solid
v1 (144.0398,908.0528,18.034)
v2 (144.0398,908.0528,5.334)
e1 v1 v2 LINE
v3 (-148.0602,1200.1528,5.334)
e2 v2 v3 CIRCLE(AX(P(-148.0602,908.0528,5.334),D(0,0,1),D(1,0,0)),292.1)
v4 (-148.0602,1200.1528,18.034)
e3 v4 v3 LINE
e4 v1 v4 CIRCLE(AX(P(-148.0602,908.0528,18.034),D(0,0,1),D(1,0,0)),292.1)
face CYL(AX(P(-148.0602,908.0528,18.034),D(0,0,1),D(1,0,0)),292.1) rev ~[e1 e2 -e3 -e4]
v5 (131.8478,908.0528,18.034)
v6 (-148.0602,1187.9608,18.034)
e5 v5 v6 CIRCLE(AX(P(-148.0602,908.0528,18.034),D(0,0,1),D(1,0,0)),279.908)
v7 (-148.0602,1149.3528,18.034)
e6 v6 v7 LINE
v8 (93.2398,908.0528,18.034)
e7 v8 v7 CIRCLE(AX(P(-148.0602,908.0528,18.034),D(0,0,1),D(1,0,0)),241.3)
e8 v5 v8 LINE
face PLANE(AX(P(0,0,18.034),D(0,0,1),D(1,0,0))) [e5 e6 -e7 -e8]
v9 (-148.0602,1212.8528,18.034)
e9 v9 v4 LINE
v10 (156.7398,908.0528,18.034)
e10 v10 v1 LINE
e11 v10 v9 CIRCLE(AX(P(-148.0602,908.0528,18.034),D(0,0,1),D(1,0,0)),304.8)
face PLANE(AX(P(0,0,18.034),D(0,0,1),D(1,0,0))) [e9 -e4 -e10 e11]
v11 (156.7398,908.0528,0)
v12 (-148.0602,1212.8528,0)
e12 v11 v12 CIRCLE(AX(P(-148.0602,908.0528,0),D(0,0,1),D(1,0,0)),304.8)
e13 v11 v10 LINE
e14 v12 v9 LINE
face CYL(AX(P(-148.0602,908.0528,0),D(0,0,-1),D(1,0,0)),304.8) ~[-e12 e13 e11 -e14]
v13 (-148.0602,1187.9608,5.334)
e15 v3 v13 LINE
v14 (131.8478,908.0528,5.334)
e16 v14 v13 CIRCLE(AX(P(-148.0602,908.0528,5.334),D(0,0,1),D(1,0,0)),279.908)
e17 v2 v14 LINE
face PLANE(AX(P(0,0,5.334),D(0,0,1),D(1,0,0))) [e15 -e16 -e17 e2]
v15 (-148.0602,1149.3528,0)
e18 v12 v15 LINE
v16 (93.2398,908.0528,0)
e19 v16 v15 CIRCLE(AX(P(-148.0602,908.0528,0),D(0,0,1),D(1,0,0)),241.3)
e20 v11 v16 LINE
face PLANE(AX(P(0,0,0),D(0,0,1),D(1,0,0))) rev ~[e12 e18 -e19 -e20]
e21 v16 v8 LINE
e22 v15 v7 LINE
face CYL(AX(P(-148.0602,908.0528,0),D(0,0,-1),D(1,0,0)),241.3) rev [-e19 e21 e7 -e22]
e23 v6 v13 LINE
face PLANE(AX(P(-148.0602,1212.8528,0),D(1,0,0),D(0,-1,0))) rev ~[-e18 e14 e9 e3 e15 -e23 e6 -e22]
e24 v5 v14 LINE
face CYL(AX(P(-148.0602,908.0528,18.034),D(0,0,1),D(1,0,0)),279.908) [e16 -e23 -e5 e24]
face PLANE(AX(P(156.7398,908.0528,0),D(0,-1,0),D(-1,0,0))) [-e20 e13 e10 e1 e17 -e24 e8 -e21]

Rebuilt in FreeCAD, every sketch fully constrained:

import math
import FreeCAD as App
import Part
import Sketcher
from FreeCAD import Vector
Q = App.Units.Quantity

doc = App.newDocument("Part")
params = doc.addObject("Spreadsheet::Sheet", "Params")
for row, (alias, value) in enumerate([
    ("sketch1_radius", "12 in"),
    ("sketch1_radius2", "9.5 in"),
    ("pad1_length", "0.71 in"),
    ("sketch2_width", "0.48 in"),
    ("sketch2_radius", "11.5 in"),
    ("pocket1_length", "0.5 in"),
], start=1):
    params.set(f"A{row}", alias)
    params.set(f"B{row}", "=" + value)
    params.setAlias(f"B{row}", alias)

body = doc.addObject("PartDesign::Body", "Body")

# Sketch on XY plane
sketch1 = doc.addObject("Sketcher::SketchObject", "Sketch")
body.addObject(sketch1)
sketch1.AttachmentSupport = (doc.XY_Plane, [""])
sketch1.MapMode = "FlatFace"
sketch1.addGeometry([
    Part.LineSegment(Vector(93, 908, 0), Vector(157, 908, 0)),
    Part.ArcOfCircle(Part.Circle(Vector(-148, 908, 0), Vector(0, 0, 1), 305), math.radians(0), math.radians(90)),
    Part.LineSegment(Vector(-148, 1213, 0), Vector(-148, 1149, 0)),
    Part.ArcOfCircle(Part.Circle(Vector(-148, 908, 0), Vector(0, 0, 1), 241), math.radians(0), math.radians(90)),
], False)
sketch1.addConstraint([
    Sketcher.Constraint("Coincident", 0, 2, 1, 1),
    Sketcher.Constraint("Coincident", 1, 2, 2, 1),
    Sketcher.Constraint("Coincident", 2, 2, 3, 2),
    Sketcher.Constraint("Coincident", 3, 1, 0, 1),
    Sketcher.Constraint("Horizontal", 0),
    Sketcher.Constraint("Vertical", 2),
    Sketcher.Constraint("Coincident", 3, 3, 1, 3),
    Sketcher.Constraint("Horizontal", 3, 3, 0, 2),
    Sketcher.Constraint("Vertical", 3, 3, 1, 2),
    Sketcher.Constraint("Radius", 1, Q("12 in")),
    Sketcher.Constraint("Radius", 3, Q("9.5 in")),
    Sketcher.Constraint("DistanceY", -1, 1, 1, 3, Q("35.7501 in")),
    Sketcher.Constraint("DistanceX", 1, 3, -1, 1, Q("148.0602 mm")),
])
sketch1.setExpression("Constraints[9]", "Params.sketch1_radius")
sketch1.setExpression("Constraints[10]", "Params.sketch1_radius2")
pad1 = doc.addObject("PartDesign::Pad", "Pad")
body.addObject(pad1)
pad1.Profile = sketch1
pad1.setExpression("Length", "Params.pad1_length")

# Sketch on XY plane
sketch2 = doc.addObject("Sketcher::SketchObject", "Sketch001")
body.addObject(sketch2)
sketch2.AttachmentSupport = (doc.XY_Plane, [""])
sketch2.MapMode = "FlatFace"
sketch2.AttachmentOffset = App.Placement(Vector(0, 0, 0.71 * 25.4), App.Rotation())
sketch2.addGeometry([
    Part.LineSegment(Vector(132, 908, 0), Vector(144, 908, 0)),
    Part.ArcOfCircle(Part.Circle(Vector(-148, 908, 0), Vector(0, 0, 1), 292), math.radians(0), math.radians(90)),
    Part.LineSegment(Vector(-148, 1200, 0), Vector(-148, 1188, 0)),
    Part.ArcOfCircle(Part.Circle(Vector(-148, 908, 0), Vector(0, 0, 1), 280), math.radians(0), math.radians(90)),
], False)
sketch2.addConstraint([
    Sketcher.Constraint("Coincident", 0, 2, 1, 1),
    Sketcher.Constraint("Coincident", 1, 2, 2, 1),
    Sketcher.Constraint("Coincident", 2, 2, 3, 2),
    Sketcher.Constraint("Coincident", 3, 1, 0, 1),
    Sketcher.Constraint("Horizontal", 0),
    Sketcher.Constraint("Vertical", 2),
    Sketcher.Constraint("Coincident", 3, 3, 1, 3),
    Sketcher.Constraint("Horizontal", 3, 3, 0, 2),
    Sketcher.Constraint("Vertical", 3, 3, 1, 2),
    Sketcher.Constraint("DistanceX", 0, 1, 0, 2, Q("0.48 in")),
    Sketcher.Constraint("Radius", 1, Q("11.5 in")),
    Sketcher.Constraint("DistanceY", -1, 1, 1, 3, Q("35.7501 in")),
    Sketcher.Constraint("DistanceX", 1, 3, -1, 1, Q("148.0602 mm")),
])
sketch2.setExpression("Constraints[9]", "Params.sketch2_width")
sketch2.setExpression("Constraints[10]", "Params.sketch2_radius")
pocket1 = doc.addObject("PartDesign::Pocket", "Pocket")
body.addObject(pocket1)
pocket1.Profile = sketch2
pocket1.setExpression("Length", "Params.pocket1_length")

doc.recompute()
